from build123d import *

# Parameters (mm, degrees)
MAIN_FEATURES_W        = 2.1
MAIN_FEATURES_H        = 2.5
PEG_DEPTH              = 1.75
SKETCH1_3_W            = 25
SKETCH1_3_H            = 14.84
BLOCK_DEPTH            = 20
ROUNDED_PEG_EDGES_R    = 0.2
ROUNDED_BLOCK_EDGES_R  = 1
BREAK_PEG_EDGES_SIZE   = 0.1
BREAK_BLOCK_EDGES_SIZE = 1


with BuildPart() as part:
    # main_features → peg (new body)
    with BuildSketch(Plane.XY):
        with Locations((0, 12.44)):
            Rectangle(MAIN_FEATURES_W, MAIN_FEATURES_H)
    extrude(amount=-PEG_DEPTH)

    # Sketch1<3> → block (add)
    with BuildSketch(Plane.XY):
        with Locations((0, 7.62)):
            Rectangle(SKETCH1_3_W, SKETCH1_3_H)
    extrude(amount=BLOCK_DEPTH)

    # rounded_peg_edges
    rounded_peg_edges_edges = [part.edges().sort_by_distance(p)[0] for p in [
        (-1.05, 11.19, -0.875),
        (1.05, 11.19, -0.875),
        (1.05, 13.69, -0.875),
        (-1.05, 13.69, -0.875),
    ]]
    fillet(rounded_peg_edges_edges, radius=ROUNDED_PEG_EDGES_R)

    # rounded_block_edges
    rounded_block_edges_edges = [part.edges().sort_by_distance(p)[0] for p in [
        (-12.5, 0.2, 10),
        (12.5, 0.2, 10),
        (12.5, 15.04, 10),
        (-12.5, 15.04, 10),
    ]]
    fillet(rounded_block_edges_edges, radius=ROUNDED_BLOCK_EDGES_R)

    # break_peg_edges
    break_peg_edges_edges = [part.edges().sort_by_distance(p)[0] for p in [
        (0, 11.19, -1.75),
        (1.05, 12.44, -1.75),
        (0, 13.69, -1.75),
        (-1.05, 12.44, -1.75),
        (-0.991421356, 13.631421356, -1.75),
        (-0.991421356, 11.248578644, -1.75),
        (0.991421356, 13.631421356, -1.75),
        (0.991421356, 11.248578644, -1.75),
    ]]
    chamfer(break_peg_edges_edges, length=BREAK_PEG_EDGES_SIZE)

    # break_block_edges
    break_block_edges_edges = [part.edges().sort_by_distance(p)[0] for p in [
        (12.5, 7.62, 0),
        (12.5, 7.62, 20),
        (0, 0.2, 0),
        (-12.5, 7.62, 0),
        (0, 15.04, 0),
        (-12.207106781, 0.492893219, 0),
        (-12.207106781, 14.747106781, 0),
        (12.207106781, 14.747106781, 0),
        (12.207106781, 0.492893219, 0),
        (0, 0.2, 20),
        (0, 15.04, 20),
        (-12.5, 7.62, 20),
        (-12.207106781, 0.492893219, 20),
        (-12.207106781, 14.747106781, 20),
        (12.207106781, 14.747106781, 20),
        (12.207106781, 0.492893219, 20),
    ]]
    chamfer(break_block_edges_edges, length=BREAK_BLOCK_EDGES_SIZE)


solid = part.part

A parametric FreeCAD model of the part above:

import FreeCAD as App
import Part
import Sketcher

V = App.Vector


def edges_at(feature, points):
    """Names of the edges that pass closest to the given points."""
    edges = feature.Shape.Edges
    near = lambda p: min(range(len(edges)), key=lambda i: edges[i].distToShape(Part.Vertex(*p))[0])
    return sorted({f"Edge{near(p) + 1}" for p in points})


def add_polygon(sketch, points):
    """Adds a closed chain of lines whose ends are joined by coincident constraints."""
    first, n = sketch.GeometryCount, len(points)
    for a, b in zip(points, points[1:] + points[:1]):
        sketch.addGeometry(Part.LineSegment(App.Vector(*a, 0), App.Vector(*b, 0)), False)
    for i in range(n):
        sketch.addConstraint(Sketcher.Constraint("Coincident", first + i, 2, first + (i + 1) % n, 1))

doc = App.newDocument("Part")
body = doc.addObject("PartDesign::Body", "Body")

# Sketch on XY plane
sketch1 = body.newObject("Sketcher::SketchObject", "Sketch")
sketch1.AttachmentSupport = (doc.getObject("XY_Plane"), [""])
sketch1.MapMode = "FlatFace"
add_polygon(sketch1, [(-1.1, 13.7), (-1.1, 11.2), (1.1, 11.2), (1.1, 13.7)])  # lines 0-3
sketch1.addConstraint([
    Sketcher.Constraint("Vertical", 0),
    Sketcher.Constraint("Horizontal", 1),
    Sketcher.Constraint("Vertical", 2),
    Sketcher.Constraint("Horizontal", 3),
    Sketcher.Constraint("DistanceX", 1, 1, 1, 2, 2.1),
    Sketcher.Constraint("DistanceY", 0, 2, 0, 1, 2.5),
    Sketcher.Constraint("DistanceX", 0, 2, -1, 1, 1.05),
    Sketcher.Constraint("DistanceY", -1, 1, 0, 2, 11.19),
])
pad1 = body.newObject("PartDesign::Pad", "Pad")
pad1.Profile = sketch1
pad1.Length = 1.75
pad1.Reversed = True

# Sketch on XY plane
sketch2 = body.newObject("Sketcher::SketchObject", "Sketch001")
sketch2.AttachmentSupport = (doc.getObject("XY_Plane"), [""])
sketch2.MapMode = "FlatFace"
add_polygon(sketch2, [(-12, 15), (-12, 0), (12, 0), (12, 15)])  # lines 0-3
sketch2.addConstraint([
    Sketcher.Constraint("Vertical", 0),
    Sketcher.Constraint("Horizontal", 1),
    Sketcher.Constraint("Vertical", 2),
    Sketcher.Constraint("Horizontal", 3),
    Sketcher.Constraint("DistanceX", 1, 1, 1, 2, 25.0),
    Sketcher.Constraint("DistanceY", 0, 2, 0, 1, 14.84),
    Sketcher.Constraint("DistanceX", 0, 2, -1, 1, 12.5),
    Sketcher.Constraint("DistanceY", -1, 1, 0, 2, 0.2),
])
pad2 = body.newObject("PartDesign::Pad", "Pad001")
pad2.Profile = sketch2
pad2.Length = 20
doc.recompute()

fillet = body.newObject("PartDesign::Fillet", "Fillet")
fillet.Base = (pad2, edges_at(pad2, [
    (-1.05, 11.19, -0.875),
    (1.05, 11.19, -0.875),
    (1.05, 13.69, -0.875),
    (-1.05, 13.69, -0.875),
]))
fillet.Radius = 0.2
doc.recompute()

fillet2 = body.newObject("PartDesign::Fillet", "Fillet001")
fillet2.Base = (fillet, edges_at(fillet, [
    (-12.5, 0.2, 10),
    (12.5, 0.2, 10),
    (12.5, 15.04, 10),
    (-12.5, 15.04, 10),
]))
fillet2.Radius = 1
doc.recompute()

chamfer = body.newObject("PartDesign::Chamfer", "Chamfer")
chamfer.Base = (fillet2, edges_at(fillet2, [
    (0, 11.19, -1.75),
    (1.05, 12.44, -1.75),
    (0, 13.69, -1.75),
    (-1.05, 12.44, -1.75),
    (-0.991, 13.631, -1.75),
    (-0.991, 11.249, -1.75),
    (0.991, 13.631, -1.75),
    (0.991, 11.249, -1.75),
]))
chamfer.Size = 0.1
doc.recompute()

chamfer2 = body.newObject("PartDesign::Chamfer", "Chamfer001")
chamfer2.Base = (chamfer, edges_at(chamfer, [
    (12.5, 7.62, 0),
    (12.5, 7.62, 20),
    (0, 0.2, 0),
    (-12.5, 7.62, 0),
    (0, 15.04, 0),
    (-12.207, 0.493, 0),
    (-12.207, 14.747, 0),
    (12.207, 14.747, 0),
    (12.207, 0.493, 0),
    (0, 0.2, 20),
    (0, 15.04, 20),
    (-12.5, 7.62, 20),
    (-12.207, 0.493, 20),
    (-12.207, 14.747, 20),
    (12.207, 14.747, 20),
    (12.207, 0.493, 20),
]))
chamfer2.Size = 1

doc.recompute()
